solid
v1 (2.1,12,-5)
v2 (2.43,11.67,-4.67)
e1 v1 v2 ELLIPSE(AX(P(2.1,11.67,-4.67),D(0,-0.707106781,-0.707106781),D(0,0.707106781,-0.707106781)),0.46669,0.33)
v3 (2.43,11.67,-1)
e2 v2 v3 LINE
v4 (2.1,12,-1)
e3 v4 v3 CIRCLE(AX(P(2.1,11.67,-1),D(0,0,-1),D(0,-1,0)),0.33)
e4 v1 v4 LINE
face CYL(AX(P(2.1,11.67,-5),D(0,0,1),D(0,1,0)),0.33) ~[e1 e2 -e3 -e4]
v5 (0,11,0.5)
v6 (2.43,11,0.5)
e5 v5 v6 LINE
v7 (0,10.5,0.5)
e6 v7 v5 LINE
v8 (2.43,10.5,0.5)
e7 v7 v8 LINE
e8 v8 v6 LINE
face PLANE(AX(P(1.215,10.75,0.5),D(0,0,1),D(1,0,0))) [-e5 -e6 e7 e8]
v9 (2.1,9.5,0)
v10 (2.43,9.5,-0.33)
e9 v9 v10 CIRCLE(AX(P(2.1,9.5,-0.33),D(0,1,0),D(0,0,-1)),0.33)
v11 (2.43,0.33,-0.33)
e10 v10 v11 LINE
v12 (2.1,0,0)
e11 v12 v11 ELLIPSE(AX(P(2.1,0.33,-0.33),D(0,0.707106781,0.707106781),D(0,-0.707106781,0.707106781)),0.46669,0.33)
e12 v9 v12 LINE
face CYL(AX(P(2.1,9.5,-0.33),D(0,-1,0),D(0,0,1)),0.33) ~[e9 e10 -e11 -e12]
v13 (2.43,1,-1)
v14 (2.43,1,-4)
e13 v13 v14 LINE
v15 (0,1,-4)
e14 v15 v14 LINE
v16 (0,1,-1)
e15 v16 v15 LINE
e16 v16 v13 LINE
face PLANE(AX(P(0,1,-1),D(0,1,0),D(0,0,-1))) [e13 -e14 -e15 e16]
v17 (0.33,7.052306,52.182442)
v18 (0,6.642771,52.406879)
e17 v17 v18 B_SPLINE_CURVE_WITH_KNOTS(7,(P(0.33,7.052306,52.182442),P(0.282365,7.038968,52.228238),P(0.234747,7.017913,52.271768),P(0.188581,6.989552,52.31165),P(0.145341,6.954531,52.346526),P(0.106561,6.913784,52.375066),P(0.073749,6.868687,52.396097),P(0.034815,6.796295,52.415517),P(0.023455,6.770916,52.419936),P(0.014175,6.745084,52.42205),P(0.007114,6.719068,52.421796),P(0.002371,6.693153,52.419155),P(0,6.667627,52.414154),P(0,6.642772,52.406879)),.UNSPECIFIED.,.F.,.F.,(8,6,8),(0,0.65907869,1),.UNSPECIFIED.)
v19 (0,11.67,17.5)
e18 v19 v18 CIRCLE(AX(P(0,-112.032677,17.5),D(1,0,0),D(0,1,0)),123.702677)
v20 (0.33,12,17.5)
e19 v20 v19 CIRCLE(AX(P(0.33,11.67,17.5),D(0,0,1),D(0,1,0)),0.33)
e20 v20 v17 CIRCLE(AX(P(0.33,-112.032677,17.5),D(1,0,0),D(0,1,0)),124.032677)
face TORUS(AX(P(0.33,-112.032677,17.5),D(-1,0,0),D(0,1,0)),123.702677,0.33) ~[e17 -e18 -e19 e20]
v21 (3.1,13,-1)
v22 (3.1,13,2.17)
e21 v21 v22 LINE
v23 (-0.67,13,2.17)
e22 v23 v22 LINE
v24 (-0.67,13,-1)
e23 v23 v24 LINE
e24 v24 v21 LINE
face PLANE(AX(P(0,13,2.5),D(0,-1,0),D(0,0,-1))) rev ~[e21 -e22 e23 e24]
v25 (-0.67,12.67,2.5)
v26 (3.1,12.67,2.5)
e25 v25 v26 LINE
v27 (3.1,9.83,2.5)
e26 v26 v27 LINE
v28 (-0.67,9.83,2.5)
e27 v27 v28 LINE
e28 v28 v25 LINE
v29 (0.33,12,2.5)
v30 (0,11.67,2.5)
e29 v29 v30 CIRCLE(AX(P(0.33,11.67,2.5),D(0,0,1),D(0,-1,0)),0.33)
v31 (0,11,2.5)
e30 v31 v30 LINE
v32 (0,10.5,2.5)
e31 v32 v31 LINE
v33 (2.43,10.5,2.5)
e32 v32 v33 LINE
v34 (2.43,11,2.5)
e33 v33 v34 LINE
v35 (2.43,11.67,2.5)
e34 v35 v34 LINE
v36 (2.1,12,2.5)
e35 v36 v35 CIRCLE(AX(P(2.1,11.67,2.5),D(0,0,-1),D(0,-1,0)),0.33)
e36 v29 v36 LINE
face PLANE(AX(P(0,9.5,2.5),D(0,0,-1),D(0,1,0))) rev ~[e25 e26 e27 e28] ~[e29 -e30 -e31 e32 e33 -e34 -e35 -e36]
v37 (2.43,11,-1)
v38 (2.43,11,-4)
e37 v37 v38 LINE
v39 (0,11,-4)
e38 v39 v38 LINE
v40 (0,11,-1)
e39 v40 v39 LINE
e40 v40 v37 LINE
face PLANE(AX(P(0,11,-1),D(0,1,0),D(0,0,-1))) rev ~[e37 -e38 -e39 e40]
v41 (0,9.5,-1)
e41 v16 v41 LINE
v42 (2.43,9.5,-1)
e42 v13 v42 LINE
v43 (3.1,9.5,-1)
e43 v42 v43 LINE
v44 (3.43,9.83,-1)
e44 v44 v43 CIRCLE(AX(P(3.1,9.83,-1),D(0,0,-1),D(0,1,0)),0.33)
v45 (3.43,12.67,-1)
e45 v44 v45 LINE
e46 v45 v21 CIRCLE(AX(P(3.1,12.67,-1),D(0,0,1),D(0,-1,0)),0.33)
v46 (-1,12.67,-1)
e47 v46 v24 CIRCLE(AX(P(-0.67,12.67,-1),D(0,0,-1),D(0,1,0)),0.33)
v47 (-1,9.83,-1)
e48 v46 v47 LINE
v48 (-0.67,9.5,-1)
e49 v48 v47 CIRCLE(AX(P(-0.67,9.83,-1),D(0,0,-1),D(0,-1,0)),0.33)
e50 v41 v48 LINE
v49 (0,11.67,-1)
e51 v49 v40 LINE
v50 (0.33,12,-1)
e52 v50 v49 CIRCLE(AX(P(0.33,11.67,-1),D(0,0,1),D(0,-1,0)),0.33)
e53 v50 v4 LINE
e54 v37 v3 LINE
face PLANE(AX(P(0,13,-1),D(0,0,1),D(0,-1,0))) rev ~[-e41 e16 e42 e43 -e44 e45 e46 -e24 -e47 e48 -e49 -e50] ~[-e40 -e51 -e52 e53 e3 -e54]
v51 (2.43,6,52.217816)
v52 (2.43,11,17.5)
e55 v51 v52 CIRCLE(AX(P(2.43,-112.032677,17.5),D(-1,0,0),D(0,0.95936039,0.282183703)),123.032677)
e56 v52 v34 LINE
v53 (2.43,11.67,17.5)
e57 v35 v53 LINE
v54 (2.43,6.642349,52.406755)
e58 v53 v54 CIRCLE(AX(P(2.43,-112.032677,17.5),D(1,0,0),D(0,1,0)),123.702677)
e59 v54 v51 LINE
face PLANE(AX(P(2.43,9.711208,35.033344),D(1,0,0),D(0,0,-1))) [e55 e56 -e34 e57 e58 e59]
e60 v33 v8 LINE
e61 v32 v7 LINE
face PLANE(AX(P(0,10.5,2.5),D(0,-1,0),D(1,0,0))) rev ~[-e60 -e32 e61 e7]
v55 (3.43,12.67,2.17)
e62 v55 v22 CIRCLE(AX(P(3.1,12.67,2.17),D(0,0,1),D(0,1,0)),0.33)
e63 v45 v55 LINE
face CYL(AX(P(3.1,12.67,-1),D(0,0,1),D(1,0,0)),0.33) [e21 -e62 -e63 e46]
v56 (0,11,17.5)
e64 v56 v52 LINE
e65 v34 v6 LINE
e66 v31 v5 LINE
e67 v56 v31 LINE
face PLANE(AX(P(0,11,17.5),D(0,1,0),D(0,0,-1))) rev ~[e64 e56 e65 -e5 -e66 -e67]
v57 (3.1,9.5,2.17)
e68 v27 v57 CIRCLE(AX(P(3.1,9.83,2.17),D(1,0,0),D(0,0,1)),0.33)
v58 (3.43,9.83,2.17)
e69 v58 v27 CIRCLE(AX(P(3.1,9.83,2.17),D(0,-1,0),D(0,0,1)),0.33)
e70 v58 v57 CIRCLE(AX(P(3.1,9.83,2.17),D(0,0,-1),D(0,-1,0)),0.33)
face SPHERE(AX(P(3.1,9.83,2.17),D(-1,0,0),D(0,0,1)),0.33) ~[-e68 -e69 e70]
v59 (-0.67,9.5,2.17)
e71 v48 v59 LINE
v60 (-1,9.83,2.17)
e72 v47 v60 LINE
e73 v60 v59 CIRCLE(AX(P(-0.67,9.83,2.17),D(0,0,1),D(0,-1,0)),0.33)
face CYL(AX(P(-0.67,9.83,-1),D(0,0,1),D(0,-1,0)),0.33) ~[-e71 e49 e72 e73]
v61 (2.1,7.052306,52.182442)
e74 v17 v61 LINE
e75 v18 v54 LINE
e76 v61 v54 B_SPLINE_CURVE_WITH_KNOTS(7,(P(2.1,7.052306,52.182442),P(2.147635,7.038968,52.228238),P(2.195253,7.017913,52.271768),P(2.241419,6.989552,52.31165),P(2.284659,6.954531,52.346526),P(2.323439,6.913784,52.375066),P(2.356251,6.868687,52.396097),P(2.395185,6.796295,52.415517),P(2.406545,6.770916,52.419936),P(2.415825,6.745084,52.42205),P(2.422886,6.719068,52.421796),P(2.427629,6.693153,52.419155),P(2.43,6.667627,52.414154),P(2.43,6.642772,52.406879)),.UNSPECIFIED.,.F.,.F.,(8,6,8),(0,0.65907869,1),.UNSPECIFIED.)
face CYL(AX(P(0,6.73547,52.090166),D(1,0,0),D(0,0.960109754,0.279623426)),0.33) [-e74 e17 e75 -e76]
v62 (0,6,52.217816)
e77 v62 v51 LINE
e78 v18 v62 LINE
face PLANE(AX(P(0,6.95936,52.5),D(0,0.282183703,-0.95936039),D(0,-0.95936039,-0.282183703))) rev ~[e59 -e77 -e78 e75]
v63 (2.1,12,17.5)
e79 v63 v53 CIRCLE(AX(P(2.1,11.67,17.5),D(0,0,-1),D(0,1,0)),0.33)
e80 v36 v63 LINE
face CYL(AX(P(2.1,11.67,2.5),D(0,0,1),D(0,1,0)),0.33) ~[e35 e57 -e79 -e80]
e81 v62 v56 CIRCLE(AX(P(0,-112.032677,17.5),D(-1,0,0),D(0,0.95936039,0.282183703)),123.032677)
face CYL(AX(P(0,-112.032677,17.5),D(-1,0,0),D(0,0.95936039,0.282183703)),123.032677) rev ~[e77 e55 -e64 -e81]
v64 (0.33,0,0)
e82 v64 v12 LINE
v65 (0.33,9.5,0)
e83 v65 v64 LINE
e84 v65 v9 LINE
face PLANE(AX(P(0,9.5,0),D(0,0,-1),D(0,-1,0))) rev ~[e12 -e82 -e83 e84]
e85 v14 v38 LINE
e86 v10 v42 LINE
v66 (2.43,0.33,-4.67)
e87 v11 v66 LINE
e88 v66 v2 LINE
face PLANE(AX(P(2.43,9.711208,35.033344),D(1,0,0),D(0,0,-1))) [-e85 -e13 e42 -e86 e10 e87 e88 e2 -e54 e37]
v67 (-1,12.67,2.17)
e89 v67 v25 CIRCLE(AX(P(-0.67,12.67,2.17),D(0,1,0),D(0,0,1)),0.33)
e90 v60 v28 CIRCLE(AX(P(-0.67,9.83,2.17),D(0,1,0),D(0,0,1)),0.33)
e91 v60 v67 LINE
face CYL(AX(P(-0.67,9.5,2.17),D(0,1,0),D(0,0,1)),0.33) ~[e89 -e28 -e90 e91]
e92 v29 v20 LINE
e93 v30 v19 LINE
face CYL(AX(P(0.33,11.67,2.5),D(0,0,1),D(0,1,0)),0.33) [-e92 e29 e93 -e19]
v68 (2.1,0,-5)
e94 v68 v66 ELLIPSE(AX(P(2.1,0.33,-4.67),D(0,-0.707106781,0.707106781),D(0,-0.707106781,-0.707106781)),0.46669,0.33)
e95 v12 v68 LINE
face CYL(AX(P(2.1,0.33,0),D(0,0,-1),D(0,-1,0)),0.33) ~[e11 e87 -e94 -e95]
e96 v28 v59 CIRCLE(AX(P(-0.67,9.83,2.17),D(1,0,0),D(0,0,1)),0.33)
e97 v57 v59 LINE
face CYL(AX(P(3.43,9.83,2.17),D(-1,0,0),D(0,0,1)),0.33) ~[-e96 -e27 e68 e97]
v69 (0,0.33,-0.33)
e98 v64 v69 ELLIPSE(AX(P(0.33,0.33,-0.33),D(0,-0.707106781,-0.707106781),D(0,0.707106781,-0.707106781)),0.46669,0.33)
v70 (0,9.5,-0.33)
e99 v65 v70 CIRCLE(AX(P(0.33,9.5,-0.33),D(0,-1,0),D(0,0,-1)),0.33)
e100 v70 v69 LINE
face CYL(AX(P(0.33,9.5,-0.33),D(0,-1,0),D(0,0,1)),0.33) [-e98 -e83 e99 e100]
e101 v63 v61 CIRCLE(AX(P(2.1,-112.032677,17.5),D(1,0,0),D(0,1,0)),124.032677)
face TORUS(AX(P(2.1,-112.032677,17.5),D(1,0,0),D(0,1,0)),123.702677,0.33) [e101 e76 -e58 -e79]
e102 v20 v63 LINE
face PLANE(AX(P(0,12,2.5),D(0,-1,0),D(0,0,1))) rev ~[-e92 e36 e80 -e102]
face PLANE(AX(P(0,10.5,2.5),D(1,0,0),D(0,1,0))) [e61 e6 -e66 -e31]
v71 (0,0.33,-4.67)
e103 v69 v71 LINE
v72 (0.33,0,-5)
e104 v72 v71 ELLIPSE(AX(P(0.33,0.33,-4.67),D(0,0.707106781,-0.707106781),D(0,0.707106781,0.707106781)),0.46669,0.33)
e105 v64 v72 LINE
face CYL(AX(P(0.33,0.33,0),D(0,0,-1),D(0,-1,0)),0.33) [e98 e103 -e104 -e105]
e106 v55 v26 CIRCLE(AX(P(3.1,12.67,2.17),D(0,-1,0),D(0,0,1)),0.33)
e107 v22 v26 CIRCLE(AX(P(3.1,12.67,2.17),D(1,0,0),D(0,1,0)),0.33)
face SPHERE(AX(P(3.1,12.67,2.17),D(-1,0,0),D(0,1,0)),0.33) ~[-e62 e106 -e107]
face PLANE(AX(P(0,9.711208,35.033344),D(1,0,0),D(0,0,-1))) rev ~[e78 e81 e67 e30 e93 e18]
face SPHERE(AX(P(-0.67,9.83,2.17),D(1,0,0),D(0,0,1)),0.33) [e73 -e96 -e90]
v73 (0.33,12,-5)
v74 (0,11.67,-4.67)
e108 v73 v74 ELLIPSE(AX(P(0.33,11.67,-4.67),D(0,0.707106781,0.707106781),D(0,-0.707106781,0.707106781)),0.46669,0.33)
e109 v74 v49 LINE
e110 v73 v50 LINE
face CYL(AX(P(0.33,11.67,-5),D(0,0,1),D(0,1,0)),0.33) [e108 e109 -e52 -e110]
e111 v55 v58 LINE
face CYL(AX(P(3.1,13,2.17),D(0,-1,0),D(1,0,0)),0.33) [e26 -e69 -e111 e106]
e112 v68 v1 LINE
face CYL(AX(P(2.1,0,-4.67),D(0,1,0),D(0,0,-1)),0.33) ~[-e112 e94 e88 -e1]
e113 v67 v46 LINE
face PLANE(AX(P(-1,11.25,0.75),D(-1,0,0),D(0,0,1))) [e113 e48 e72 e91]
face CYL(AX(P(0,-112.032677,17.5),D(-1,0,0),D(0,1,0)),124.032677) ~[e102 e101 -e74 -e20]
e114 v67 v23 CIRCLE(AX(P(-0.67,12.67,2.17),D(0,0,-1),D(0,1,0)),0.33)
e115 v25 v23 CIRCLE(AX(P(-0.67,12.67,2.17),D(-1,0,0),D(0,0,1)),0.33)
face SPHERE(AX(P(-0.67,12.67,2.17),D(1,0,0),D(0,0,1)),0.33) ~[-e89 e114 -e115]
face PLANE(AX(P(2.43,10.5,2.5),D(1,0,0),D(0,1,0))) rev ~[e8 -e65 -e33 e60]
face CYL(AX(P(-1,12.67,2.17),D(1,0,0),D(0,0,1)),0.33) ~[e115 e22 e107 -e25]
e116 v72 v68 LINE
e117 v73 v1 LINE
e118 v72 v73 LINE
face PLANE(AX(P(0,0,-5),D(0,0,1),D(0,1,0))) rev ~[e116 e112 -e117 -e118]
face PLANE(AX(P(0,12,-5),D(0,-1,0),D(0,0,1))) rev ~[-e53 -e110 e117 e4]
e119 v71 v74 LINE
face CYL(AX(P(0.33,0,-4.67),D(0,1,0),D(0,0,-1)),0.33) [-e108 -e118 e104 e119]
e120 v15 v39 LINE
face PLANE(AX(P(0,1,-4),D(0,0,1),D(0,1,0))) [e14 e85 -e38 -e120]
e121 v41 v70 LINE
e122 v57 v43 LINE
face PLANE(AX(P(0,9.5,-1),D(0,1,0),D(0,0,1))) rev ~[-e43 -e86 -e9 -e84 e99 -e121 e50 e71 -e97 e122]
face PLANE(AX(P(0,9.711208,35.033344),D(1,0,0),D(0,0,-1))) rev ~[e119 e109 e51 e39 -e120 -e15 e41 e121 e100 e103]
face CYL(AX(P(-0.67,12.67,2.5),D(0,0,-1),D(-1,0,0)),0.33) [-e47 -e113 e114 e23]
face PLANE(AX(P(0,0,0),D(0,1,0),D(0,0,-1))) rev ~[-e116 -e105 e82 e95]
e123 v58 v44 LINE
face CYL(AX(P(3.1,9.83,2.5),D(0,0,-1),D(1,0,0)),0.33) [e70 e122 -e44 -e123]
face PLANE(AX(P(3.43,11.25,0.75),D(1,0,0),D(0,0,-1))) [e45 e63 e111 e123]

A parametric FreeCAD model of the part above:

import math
import FreeCAD as App
import Part
import Sketcher
from FreeCAD import Vector
Q = App.Units.Quantity


def edges_at(feature, points):
    """Names of the edges that pass closest to the given points."""
    edges = feature.Shape.Edges
    near = lambda p: min(range(len(edges)), key=lambda i: edges[i].distToShape(Part.Vertex(*p))[0])
    return sorted({f"Edge{near(p) + 1}" for p in points})


def add_polygon(sketch, points):
    """Adds a closed chain of lines whose ends are joined by coincident constraints."""
    first, n = sketch.GeometryCount, len(points)
    for a, b in zip(points, points[1:] + points[:1]):
        sketch.addGeometry(Part.LineSegment(App.Vector(*a, 0), App.Vector(*b, 0)), False)
    for i in range(n):
        sketch.addConstraint(Sketcher.Constraint("Coincident", first + i, 2, first + (i + 1) % n, 1))

doc = App.newDocument("Part")
body = doc.addObject("PartDesign::Body", "Body")

# Sketch on YZ plane
sketch1 = doc.addObject("Sketcher::SketchObject", "Sketch")
body.addObject(sketch1)
sketch1.AttachmentSupport = (doc.YZ_Plane, [""])
sketch1.MapMode = "FlatFace"
sketch1.addGeometry(Part.LineSegment(Vector(12, -1, 0), Vector(13, -1, 0)), False)  # 0
sketch1.addGeometry(Part.LineSegment(Vector(13, -1, 0), Vector(13, 2.5, 0)), False)  # 1
sketch1.addGeometry(Part.LineSegment(Vector(13, 2.5, 0), Vector(12, 2.5, 0)), False)  # 2
sketch1.addGeometry(Part.LineSegment(Vector(12, 2.5, 0), Vector(12, 17.5, 0)), False)  # 3
sketch1.addGeometry(Part.ArcOfCircle(Part.Circle(Vector(-112, 17.5, 0), Vector(0, 0, 1), 124), math.radians(0), math.radians(16.39)), False)  # 4
sketch1.addGeometry(Part.LineSegment(Vector(7, 52.5, 0), Vector(6, 52.2, 0)), False)  # 5
sketch1.addGeometry(Part.ArcOfCircle(Part.Circle(Vector(-112, 17.5, 0), Vector(0, 0, 1), 123), math.radians(0), math.radians(16.39)), False)  # 6
sketch1.addGeometry(Part.LineSegment(Vector(11, 17.5, 0), Vector(11, 2.5, 0)), False)  # 7
sketch1.addGeometry(Part.LineSegment(Vector(11, 2.5, 0), Vector(9.5, 2.5, 0)), False)  # 8
sketch1.addGeometry(Part.LineSegment(Vector(9.5, 2.5, 0), Vector(9.5, 0, 0)), False)  # 9
sketch1.addGeometry(Part.LineSegment(Vector(9.5, 0, 0), Vector(0, 0, 0)), False)  # 10
sketch1.addGeometry(Part.LineSegment(Vector(0, 0, 0), Vector(0, -5, 0)), False)  # 11
sketch1.addGeometry(Part.LineSegment(Vector(0, -5, 0), Vector(12, -5, 0)), False)  # 12
sketch1.addGeometry(Part.LineSegment(Vector(12, -5, 0), Vector(12, -1, 0)), False)  # 13
add_polygon(sketch1, [(1, -4), (1, -1), (11, -1), (11, -4)])  # lines 14-17
sketch1.addConstraint(Sketcher.Constraint("Coincident", 0, 2, 1, 1))
sketch1.addConstraint(Sketcher.Constraint("Coincident", 1, 2, 2, 1))
sketch1.addConstraint(Sketcher.Constraint("Coincident", 2, 2, 3, 1))
sketch1.addConstraint(Sketcher.Constraint("Tangent", 3, 2, 4, 1))
sketch1.addConstraint(Sketcher.Constraint("Coincident", 4, 2, 5, 1))
sketch1.addConstraint(Sketcher.Constraint("Coincident", 5, 2, 6, 2))
sketch1.addConstraint(Sketcher.Constraint("Tangent", 6, 1, 7, 1))
sketch1.addConstraint(Sketcher.Constraint("Coincident", 7, 2, 8, 1))
sketch1.addConstraint(Sketcher.Constraint("Coincident", 8, 2, 9, 1))
sketch1.addConstraint(Sketcher.Constraint("Coincident", 9, 2, 10, 1))
sketch1.addConstraint(Sketcher.Constraint("Coincident", 10, 2, 11, 1))
sketch1.addConstraint(Sketcher.Constraint("Coincident", 11, 2, 12, 1))
sketch1.addConstraint(Sketcher.Constraint("Coincident", 12, 2, 13, 1))
sketch1.addConstraint(Sketcher.Constraint("Coincident", 13, 2, 0, 1))
sketch1.addConstraint(Sketcher.Constraint("Horizontal", 0))
sketch1.addConstraint(Sketcher.Constraint("Vertical", 1))
sketch1.addConstraint(Sketcher.Constraint("Horizontal", 2))
sketch1.addConstraint(Sketcher.Constraint("Vertical", 3))
sketch1.addConstraint(Sketcher.Constraint("Vertical", 7))
sketch1.addConstraint(Sketcher.Constraint("Horizontal", 8))
sketch1.addConstraint(Sketcher.Constraint("Vertical", 9))
sketch1.addConstraint(Sketcher.Constraint("Horizontal", 10))
sketch1.addConstraint(Sketcher.Constraint("Vertical", 11))
sketch1.addConstraint(Sketcher.Constraint("Horizontal", 12))
sketch1.addConstraint(Sketcher.Constraint("Vertical", 13))
sketch1.addConstraint(Sketcher.Constraint("Vertical", 14))
sketch1.addConstraint(Sketcher.Constraint("Horizontal", 15))
sketch1.addConstraint(Sketcher.Constraint("Vertical", 16))
sketch1.addConstraint(Sketcher.Constraint("Horizontal", 17))
sketch1.addConstraint(Sketcher.Constraint("Coincident", 10, 2, -1, 1))
sketch1.addConstraint(Sketcher.Constraint("Coincident", 6, 3, 4, 3))
sketch1.addConstraint(Sketcher.Constraint("Horizontal", 2, 2, 7, 2))
sketch1.addConstraint(Sketcher.Constraint("Horizontal", 13, 2, 14, 2))
sketch1.addConstraint(Sketcher.Constraint("Vertical", 3, 2, 12, 2))
sketch1.addConstraint(Sketcher.Constraint("Vertical", 7, 2, 15, 2))
sketch1.addConstraint(Sketcher.Constraint("DistanceX", 0, 1, 0, 2, Q("1 mm")))
sketch1.addConstraint(Sketcher.Constraint("DistanceX", 12, 1, 12, 2, Q("12 mm")))
sketch1.addConstraint(Sketcher.Constraint("DistanceX", 15, 1, 15, 2, Q("10 mm")))
sketch1.addConstraint(Sketcher.Constraint("DistanceY", 3, 1, 3, 2, Q("15 mm")))
sketch1.addConstraint(Sketcher.Constraint("DistanceY", 11, 2, 11, 1, Q("5 mm")))
sketch1.addConstraint(Sketcher.Constraint("DistanceY", 13, 1, 13, 2, Q("4 mm")))
sketch1.addConstraint(Sketcher.Constraint("DistanceY", 14, 1, 14, 2, Q("3 mm")))
sketch1.addConstraint(Sketcher.Constraint("Distance", 5, Q("1 mm")))
sketch1.addConstraint(Sketcher.Constraint("DistanceX", 8, 2, 8, 1, Q("1.5 mm")))
sketch1.addConstraint(Sketcher.Constraint("DistanceY", 1, 1, 1, 2, Q("3.5 mm")))
sketch1.addConstraint(Sketcher.Constraint("DistanceX", -1, 1, 5, 2, Q("6 mm")))
sketch1.addConstraint(Sketcher.Constraint("DistanceY", 3, 2, 4, 2, Q("35 mm")))
sketch1.addConstraint(Sketcher.Constraint("Radius", 4, Q("124.032677 mm")))
pad1 = doc.addObject("PartDesign::Pad", "Pad")
body.addObject(pad1)
pad1.Profile = sketch1
pad1.Length = 2.43

# Sketch on YZ plane
sketch2 = doc.addObject("Sketcher::SketchObject", "Sketch001")
body.addObject(sketch2)
sketch2.AttachmentSupport = (doc.YZ_Plane, [""])
sketch2.MapMode = "FlatFace"
sketch2.AttachmentOffset = App.Placement(Vector(0, 0, 2.43), App.Rotation())
add_polygon(sketch2, [(13, 2.5), (9.5, 2.5), (9.5, -1), (13, -1)])  # lines 0-3
sketch2.addConstraint(Sketcher.Constraint("Horizontal", 0))
sketch2.addConstraint(Sketcher.Constraint("Vertical", 1))
sketch2.addConstraint(Sketcher.Constraint("Horizontal", 2))
sketch2.addConstraint(Sketcher.Constraint("Vertical", 3))
sketch2.addConstraint(Sketcher.Constraint("Equal", 2, 1))
sketch2.addConstraint(Sketcher.Constraint("DistanceX", 0, 2, 0, 1, Q("3.5 mm")))
sketch2.addConstraint(Sketcher.Constraint("DistanceY", 1, 2, -1, 1, Q("1 mm")))
sketch2.addConstraint(Sketcher.Constraint("DistanceX", -1, 1, 2, 2, Q("13 mm")))
pad2 = doc.addObject("PartDesign::Pad", "Pad001")
body.addObject(pad2)
pad2.Profile = sketch2
pad2.Length = 1

# Sketch on YZ plane
sketch3 = doc.addObject("Sketcher::SketchObject", "Sketch002")
body.addObject(sketch3)
sketch3.AttachmentSupport = (doc.YZ_Plane, [""])
sketch3.MapMode = "FlatFace"
add_polygon(sketch3, [(13, -1), (9.5, -1), (9.5, 2.5), (13, 2.5)])  # lines 0-3
sketch3.addConstraint(Sketcher.Constraint("Horizontal", 0))
sketch3.addConstraint(Sketcher.Constraint("Vertical", 1))
sketch3.addConstraint(Sketcher.Constraint("Horizontal", 2))
sketch3.addConstraint(Sketcher.Constraint("Vertical", 3))
sketch3.addConstraint(Sketcher.Constraint("Equal", 2, 1))
sketch3.addConstraint(Sketcher.Constraint("DistanceX", 0, 2, 0, 1, Q("3.5 mm")))
sketch3.addConstraint(Sketcher.Constraint("DistanceY", 0, 2, -1, 1, Q("1 mm")))
sketch3.addConstraint(Sketcher.Constraint("DistanceX", -1, 1, 2, 2, Q("13 mm")))
pad3 = doc.addObject("PartDesign::Pad", "Pad002")
body.addObject(pad3)
pad3.Profile = sketch3
pad3.Length = 1
pad3.Reversed = True
doc.recompute()

fillet = doc.addObject("PartDesign::Fillet", "Fillet")
body.addObject(fillet)
fillet.Base = (pad3, edges_at(pad3, [
    (0, 12, -3),
    (0, 6, -5),
    (0, 0, -2.5),
    (0, 4.75, 0),
    (0, 10.733, 35.181),
    (0, 12, 10),
    (1.215, 9.5, 2.5),
    (1.215, 6.959, 52.5),
    (1.215, 13, 2.5),
    (2.43, 12, 10),
    (2.43, 10.733, 35.181),
    (3.43, 13, 0.75),
    (3.43, 11.25, 2.5),
    (3.43, 9.5, 0.75),
    (2.43, 4.75, 0),
    (2.43, 0, -2.5),
    (2.43, 6, -5),
    (-1, 11.25, 2.5),
    (-1, 13, 0.75),
    (-1, 9.5, 0.75),
    (2.43, 12, -3),
]))
fillet.Radius = 0.33

# Sketch on XY plane
sketch4 = doc.addObject("Sketcher::SketchObject", "Sketch003")
body.addObject(sketch4)
sketch4.AttachmentSupport = (doc.XY_Plane, [""])
sketch4.MapMode = "FlatFace"
sketch4.AttachmentOffset = App.Placement(Vector(0, 0, 2.5), App.Rotation())
add_polygon(sketch4, [(0, 11), (0, 10.5), (2.4, 10.5), (2.4, 11)])  # lines 0-3
sketch4.addConstraint(Sketcher.Constraint("Vertical", 0))
sketch4.addConstraint(Sketcher.Constraint("Horizontal", 1))
sketch4.addConstraint(Sketcher.Constraint("Vertical", 2))
sketch4.addConstraint(Sketcher.Constraint("Horizontal", 3))
sketch4.addConstraint(Sketcher.Constraint("PointOnObject", 0, 2, -2))
sketch4.addConstraint(Sketcher.Constraint("DistanceY", 0, 2, 0, 1, Q("0.5 mm")))
sketch4.addConstraint(Sketcher.Constraint("DistanceY", -1, 1, 2, 2, Q("11 mm")))
sketch4.addConstraint(Sketcher.Constraint("DistanceX", 1, 1, 1, 2, Q("2.43 mm")))
pocket1 = doc.addObject("PartDesign::Pocket", "Pocket")
body.addObject(pocket1)
pocket1.Profile = sketch4
pocket1.Length = 2

doc.recompute()
